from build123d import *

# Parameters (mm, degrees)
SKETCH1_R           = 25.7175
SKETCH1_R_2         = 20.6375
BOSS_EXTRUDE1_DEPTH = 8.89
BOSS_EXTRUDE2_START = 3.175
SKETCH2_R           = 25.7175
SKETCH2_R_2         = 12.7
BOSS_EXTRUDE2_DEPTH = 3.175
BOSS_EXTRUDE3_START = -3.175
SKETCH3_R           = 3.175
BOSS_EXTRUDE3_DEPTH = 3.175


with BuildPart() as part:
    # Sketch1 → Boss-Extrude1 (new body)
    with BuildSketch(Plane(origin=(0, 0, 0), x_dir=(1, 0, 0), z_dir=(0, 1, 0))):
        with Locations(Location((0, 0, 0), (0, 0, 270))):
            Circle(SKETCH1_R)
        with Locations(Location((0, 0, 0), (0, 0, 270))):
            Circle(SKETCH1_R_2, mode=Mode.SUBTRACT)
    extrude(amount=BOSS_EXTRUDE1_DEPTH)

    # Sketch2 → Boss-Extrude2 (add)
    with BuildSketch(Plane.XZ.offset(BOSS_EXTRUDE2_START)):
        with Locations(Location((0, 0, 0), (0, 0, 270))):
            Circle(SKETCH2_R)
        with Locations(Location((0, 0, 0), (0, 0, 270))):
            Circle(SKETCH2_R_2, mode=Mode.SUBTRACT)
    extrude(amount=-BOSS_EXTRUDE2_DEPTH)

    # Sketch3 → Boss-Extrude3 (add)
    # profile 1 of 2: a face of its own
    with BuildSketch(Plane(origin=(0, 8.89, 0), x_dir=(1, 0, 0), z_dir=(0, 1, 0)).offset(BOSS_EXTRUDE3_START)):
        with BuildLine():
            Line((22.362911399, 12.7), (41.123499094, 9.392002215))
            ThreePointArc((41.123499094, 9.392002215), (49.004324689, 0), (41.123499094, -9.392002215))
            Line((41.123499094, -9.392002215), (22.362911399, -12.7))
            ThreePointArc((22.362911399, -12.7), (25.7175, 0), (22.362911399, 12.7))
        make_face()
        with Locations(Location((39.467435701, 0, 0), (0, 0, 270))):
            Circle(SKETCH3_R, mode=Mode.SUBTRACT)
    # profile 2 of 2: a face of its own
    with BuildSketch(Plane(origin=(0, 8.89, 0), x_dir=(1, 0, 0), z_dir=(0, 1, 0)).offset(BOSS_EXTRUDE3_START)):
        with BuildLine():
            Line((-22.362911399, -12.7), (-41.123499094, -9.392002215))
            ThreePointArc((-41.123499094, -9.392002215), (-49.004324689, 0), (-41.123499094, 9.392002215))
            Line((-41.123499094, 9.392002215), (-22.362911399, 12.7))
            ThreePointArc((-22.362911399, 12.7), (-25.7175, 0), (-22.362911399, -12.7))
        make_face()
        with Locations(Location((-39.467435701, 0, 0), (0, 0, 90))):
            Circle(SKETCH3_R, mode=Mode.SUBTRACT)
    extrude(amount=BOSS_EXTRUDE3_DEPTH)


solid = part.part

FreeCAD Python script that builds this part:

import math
import FreeCAD as App
import Part
import Sketcher
from FreeCAD import Vector
Q = App.Units.Quantity

doc = App.newDocument("Part")
body = doc.addObject("PartDesign::Body", "Body")

sketch1 = doc.addObject("Sketcher::SketchObject", "Sketch")
body.addObject(sketch1)
sketch1.AttachmentSupport = (doc.XZ_Plane, [""])
sketch1.MapMode = "FlatFace"
sketch1.addGeometry([
    Part.Circle(Vector(0, 0, 0), Vector(0, 0, 1), 26),
    Part.Circle(Vector(0, 0, 0), Vector(0, 0, 1), 21),
], False)
sketch1.addConstraint([
    Sketcher.Constraint("Coincident", 0, 3, -1, 1),
    Sketcher.Constraint("Coincident", 1, 3, -1, 1),
    Sketcher.Constraint("Diameter", 0, Q("2.025 in")),
    Sketcher.Constraint("Diameter", 1, Q("1.625 in")),
])
pad1 = doc.addObject("PartDesign::Pad", "Pad")
body.addObject(pad1)
pad1.Profile = sketch1
pad1.Length = Q("0.35 in")
pad1.Reversed = True

sketch2 = doc.addObject("Sketcher::SketchObject", "Sketch001")
body.addObject(sketch2)
sketch2.AttachmentSupport = (doc.XZ_Plane, [""])
sketch2.MapMode = "FlatFace"
sketch2.AttachmentOffset = App.Placement(Vector(0, 0, 0.125 * 25.4), App.Rotation())
sketch2.addGeometry([
    Part.Circle(Vector(0, 0, 0), Vector(0, 0, 1), 26),
    Part.Circle(Vector(0, 0, 0), Vector(0, 0, 1), 13),
], False)
sketch2.addConstraint([
    Sketcher.Constraint("Coincident", 0, 3, -1, 1),
    Sketcher.Constraint("Coincident", 1, 3, -1, 1),
    Sketcher.Constraint("Diameter", 1, Q("1 in")),
    Sketcher.Constraint("Diameter", 0, Q("2.025 in")),
])
pad2 = doc.addObject("PartDesign::Pad", "Pad001")
body.addObject(pad2)
pad2.Profile = sketch2
pad2.Length = Q("0.125 in")
pad2.Reversed = True

sketch3 = doc.addObject("Sketcher::SketchObject", "Sketch002")
body.addObject(sketch3)
sketch3.AttachmentSupport = (doc.XZ_Plane, [""])
sketch3.MapMode = "FlatFace"
sketch3.AttachmentOffset = App.Placement(Vector(0, 0, -0.225 * 25.4), App.Rotation())
sketch3.addGeometry([
    Part.LineSegment(Vector(41.1, -9.4, 0), Vector(22.4, -12.7, 0)),
    Part.ArcOfCircle(Part.Circle(Vector(0, 0, 0), Vector(0, 0, 1), 25.7), math.radians(-30), math.radians(30)),
    Part.LineSegment(Vector(22.4, 12.7, 0), Vector(41.1, 9.4, 0)),
    Part.ArcOfCircle(Part.Circle(Vector(39.5, 0, 0), Vector(0, 0, 1), 9.5), math.radians(-80), math.radians(80)),
    Part.Circle(Vector(39.5, 0, 0), Vector(0, 0, 1), 3.2),
    Part.LineSegment(Vector(-41.1, 9.4, 0), Vector(-22.4, 12.7, 0)),
    Part.ArcOfCircle(Part.Circle(Vector(0, 0, 0), Vector(0, 0, 1), 25.7), math.radians(150), math.radians(210)),
    Part.LineSegment(Vector(-22.4, -12.7, 0), Vector(-41.1, -9.4, 0)),
    Part.ArcOfCircle(Part.Circle(Vector(-39.5, 0, 0), Vector(0, 0, 1), 9.5), math.radians(100), math.radians(260)),
    Part.Circle(Vector(-39.5, 0, 0), Vector(0, 0, 1), 3.2),
], False)
sketch3.addConstraint([
    Sketcher.Constraint("Coincident", 0, 2, 1, 1),
    Sketcher.Constraint("Coincident", 1, 2, 2, 1),
    Sketcher.Constraint("Tangent", 2, 2, 3, 2),
    Sketcher.Constraint("Tangent", 3, 1, 0, 1),
    Sketcher.Constraint("Coincident", 5, 2, 6, 1),
    Sketcher.Constraint("Coincident", 6, 2, 7, 1),
    Sketcher.Constraint("Tangent", 7, 2, 8, 2),
    Sketcher.Constraint("Tangent", 8, 1, 5, 1),
    Sketcher.Constraint("Coincident", 1, 3, -1, 1),
    Sketcher.Constraint("Coincident", 6, 3, -1, 1),
    Sketcher.Constraint("Coincident", 4, 3, 3, 3),
    Sketcher.Constraint("Coincident", 9, 3, 8, 3),
    Sketcher.Constraint("Equal", 1, 6),
    Sketcher.Constraint("Equal", 3, 8),
    Sketcher.Constraint("Equal", 4, 9),
    Sketcher.Constraint("Symmetric", 3, 3, 8, 3, -1, 1),
    Sketcher.Constraint("Symmetric", 3, 1, 7, 2, -2),
    Sketcher.Constraint("Parallel", 0, 5),
    Sketcher.Constraint("Parallel", 2, 7),
    Sketcher.Constraint("Diameter", 4, Q("0.25 in")),
    Sketcher.Constraint("Angle", 0, Q("-170 deg")),
    Sketcher.Constraint("DistanceY", 0, 2, 1, 2, Q("1 in")),
    Sketcher.Constraint("Radius", 1, Q("1.0125 in")),
    Sketcher.Constraint("Distance", 0, Q("0.75 in")),
])
pad3 = doc.addObject("PartDesign::Pad", "Pad002")
body.addObject(pad3)
pad3.Profile = sketch3
pad3.Length = Q("0.125 in")
pad3.Reversed = True

doc.recompute()
